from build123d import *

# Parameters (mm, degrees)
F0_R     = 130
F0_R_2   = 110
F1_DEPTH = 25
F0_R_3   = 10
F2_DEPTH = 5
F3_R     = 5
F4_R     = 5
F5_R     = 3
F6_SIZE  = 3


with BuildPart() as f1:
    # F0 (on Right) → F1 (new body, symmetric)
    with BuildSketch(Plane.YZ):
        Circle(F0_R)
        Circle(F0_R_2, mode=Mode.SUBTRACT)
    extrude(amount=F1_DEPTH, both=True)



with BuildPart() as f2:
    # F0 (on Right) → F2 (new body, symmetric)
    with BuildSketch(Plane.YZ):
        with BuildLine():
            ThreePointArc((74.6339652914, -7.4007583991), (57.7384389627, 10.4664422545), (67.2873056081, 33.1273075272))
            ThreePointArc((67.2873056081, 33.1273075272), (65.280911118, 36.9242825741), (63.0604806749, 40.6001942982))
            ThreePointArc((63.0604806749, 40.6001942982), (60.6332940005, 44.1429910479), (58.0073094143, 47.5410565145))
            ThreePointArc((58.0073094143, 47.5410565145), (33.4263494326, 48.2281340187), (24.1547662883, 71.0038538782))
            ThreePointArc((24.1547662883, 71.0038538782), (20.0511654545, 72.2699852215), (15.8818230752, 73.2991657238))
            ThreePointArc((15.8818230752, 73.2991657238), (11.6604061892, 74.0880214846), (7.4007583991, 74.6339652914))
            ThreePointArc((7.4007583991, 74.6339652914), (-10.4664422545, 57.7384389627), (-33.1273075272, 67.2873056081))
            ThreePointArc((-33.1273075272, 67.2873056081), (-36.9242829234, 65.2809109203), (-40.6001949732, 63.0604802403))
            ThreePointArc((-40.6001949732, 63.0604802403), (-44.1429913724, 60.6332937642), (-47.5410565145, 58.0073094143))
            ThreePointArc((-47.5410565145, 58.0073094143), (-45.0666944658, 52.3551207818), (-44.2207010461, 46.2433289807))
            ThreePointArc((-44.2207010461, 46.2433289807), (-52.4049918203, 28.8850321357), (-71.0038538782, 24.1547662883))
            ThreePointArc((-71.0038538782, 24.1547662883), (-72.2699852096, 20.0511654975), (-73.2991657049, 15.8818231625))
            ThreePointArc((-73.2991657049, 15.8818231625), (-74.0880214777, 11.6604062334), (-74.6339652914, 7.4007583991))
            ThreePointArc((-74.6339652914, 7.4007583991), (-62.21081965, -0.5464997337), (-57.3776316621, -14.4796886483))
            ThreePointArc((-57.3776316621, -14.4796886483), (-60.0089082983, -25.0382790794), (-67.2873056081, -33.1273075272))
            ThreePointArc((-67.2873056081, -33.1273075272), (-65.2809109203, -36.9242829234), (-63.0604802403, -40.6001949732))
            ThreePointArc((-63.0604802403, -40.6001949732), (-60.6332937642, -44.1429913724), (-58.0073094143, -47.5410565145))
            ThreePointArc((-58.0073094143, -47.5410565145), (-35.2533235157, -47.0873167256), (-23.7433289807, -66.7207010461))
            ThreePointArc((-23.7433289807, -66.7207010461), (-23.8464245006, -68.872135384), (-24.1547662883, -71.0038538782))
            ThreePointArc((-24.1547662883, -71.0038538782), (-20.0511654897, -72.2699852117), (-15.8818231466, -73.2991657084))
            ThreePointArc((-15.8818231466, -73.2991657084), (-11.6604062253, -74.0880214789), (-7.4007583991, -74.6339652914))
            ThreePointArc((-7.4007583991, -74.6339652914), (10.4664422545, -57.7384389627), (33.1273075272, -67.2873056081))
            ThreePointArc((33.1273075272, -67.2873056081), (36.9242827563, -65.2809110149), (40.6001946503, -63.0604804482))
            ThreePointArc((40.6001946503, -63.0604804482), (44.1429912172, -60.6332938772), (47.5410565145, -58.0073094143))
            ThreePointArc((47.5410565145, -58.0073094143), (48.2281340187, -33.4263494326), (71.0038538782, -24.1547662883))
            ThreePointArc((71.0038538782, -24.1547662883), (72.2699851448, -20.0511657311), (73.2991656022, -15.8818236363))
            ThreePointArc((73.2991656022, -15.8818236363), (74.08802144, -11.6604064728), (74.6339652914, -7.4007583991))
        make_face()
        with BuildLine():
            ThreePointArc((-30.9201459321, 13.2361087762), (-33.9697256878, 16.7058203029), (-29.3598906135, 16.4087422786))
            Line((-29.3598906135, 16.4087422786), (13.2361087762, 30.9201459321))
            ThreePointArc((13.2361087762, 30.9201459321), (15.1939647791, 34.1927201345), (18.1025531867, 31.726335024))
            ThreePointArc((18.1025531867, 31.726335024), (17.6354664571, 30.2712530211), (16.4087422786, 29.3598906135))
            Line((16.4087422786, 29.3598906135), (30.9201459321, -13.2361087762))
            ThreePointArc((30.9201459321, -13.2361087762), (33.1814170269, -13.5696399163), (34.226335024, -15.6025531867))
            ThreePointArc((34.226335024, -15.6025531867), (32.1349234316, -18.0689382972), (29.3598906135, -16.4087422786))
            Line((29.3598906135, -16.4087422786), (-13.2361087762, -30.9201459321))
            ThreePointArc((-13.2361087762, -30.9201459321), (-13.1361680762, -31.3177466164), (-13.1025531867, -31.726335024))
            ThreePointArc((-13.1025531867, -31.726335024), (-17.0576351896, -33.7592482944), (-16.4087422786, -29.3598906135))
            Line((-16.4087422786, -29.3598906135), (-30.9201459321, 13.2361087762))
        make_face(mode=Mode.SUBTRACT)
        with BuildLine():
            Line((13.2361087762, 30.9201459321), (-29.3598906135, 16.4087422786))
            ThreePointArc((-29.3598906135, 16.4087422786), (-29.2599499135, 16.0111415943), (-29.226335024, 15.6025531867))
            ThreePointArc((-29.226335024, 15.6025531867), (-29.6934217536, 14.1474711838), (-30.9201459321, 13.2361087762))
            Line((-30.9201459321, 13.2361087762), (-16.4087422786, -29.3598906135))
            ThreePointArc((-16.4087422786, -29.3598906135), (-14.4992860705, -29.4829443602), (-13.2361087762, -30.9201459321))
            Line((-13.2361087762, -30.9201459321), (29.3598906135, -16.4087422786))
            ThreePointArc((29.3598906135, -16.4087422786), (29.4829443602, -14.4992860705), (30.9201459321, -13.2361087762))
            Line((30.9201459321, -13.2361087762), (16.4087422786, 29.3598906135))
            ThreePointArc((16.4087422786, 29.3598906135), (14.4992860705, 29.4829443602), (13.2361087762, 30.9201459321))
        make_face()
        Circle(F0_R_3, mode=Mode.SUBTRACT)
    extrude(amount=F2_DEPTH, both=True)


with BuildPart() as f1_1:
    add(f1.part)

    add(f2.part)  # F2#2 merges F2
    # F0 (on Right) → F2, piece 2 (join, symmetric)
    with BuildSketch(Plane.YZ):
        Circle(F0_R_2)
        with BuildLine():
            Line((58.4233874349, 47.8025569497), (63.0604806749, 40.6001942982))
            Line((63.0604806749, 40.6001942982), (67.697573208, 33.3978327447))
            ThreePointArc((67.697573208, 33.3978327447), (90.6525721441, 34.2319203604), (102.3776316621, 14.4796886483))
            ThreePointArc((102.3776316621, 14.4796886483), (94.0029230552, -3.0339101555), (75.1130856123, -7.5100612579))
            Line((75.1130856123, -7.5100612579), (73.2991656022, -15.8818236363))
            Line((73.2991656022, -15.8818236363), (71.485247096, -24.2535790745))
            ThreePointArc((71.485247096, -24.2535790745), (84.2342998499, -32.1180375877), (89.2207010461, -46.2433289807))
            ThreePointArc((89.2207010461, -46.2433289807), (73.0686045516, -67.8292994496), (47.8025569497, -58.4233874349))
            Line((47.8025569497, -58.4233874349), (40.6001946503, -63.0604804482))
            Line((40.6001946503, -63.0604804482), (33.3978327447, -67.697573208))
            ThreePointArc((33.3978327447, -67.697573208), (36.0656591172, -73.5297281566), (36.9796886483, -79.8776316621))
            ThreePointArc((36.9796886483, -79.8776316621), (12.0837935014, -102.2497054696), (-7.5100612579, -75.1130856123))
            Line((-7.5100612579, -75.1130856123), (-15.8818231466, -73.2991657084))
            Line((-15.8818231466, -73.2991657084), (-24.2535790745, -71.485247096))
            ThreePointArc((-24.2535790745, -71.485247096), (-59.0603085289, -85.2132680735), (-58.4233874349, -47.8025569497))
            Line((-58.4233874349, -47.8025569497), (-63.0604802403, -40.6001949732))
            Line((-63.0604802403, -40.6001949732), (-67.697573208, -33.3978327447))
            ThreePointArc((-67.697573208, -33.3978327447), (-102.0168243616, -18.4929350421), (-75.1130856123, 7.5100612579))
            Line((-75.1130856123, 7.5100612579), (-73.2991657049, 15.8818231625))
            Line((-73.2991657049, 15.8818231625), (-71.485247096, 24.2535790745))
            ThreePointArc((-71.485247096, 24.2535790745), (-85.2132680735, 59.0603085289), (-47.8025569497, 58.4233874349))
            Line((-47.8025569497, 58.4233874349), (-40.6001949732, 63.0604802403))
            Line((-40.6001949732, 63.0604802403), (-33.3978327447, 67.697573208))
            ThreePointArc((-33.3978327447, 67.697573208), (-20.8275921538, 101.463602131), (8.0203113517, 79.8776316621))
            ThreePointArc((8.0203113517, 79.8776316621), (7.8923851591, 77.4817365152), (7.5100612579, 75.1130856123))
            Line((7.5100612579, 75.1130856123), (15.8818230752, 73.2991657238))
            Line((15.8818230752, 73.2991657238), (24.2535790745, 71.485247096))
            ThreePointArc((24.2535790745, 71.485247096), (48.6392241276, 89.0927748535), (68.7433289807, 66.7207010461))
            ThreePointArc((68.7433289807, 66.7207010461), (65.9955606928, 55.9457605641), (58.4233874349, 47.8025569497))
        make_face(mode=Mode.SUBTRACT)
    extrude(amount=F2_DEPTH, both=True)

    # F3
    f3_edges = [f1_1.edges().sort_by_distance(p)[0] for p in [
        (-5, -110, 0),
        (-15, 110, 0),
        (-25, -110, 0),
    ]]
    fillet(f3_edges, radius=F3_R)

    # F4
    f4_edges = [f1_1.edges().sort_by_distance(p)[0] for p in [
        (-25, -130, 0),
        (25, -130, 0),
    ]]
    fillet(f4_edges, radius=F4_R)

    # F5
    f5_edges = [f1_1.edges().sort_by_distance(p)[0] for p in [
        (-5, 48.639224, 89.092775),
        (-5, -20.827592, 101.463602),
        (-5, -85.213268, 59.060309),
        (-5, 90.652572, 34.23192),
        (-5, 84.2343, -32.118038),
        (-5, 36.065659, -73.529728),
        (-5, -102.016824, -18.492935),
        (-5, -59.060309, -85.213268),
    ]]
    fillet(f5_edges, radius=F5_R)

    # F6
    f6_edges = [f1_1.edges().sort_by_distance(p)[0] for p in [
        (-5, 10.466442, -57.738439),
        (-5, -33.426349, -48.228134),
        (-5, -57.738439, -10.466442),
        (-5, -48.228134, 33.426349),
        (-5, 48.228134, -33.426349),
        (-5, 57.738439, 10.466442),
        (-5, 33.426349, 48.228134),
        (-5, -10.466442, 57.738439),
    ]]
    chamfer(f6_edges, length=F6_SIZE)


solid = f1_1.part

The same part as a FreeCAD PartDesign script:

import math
import FreeCAD as App
import Part
import Sketcher

V = App.Vector


def edges_at(feature, points):
    """Names of the edges that pass closest to the given points."""
    edges = feature.Shape.Edges
    near = lambda p: min(range(len(edges)), key=lambda i: edges[i].distToShape(Part.Vertex(*p))[0])
    return sorted({f"Edge{near(p) + 1}" for p in points})

doc = App.newDocument("Part")
body = doc.addObject("PartDesign::Body", "Body")

sketch1 = doc.addObject("Sketcher::SketchObject", "Sketch")
body.addObject(sketch1)
sketch1.AttachmentSupport = (doc.YZ_Plane, [""])
sketch1.MapMode = "FlatFace"
sketch1.addGeometry([
    Part.Circle(V(0, 0, 0), V(0, 0, 1), 130),
    Part.Circle(V(0, 0, 0), V(0, 0, 1), 110),
], False)
sketch1.addConstraint([
    Sketcher.Constraint("Coincident", 0, 3, -1, 1),
    Sketcher.Constraint("Coincident", 1, 3, -1, 1),
    Sketcher.Constraint("Diameter", 0, 260.0),
    Sketcher.Constraint("Diameter", 1, 220.0),
])
pad1 = doc.addObject("PartDesign::Pad", "Pad")
body.addObject(pad1)
pad1.Profile = sketch1
pad1.Length = 50
pad1.Midplane = True
body2 = doc.addObject("PartDesign::Body", "Body001")

sketch2 = doc.addObject("Sketcher::SketchObject", "Sketch001")
body2.addObject(sketch2)
sketch2.AttachmentSupport = (doc.getObject("YZ_Plane001"), [""])
sketch2.MapMode = "FlatFace"
sketch2.addGeometry([
    Part.ArcOfCircle(Part.Circle(V(79.877632, 14.479689, 0), V(0, 0, 1), 22.5), math.radians(124.026069), math.radians(256.523187)),
    Part.ArcOfCircle(Part.Circle(V(0, 0, 0), V(0, 0, 1), 75), math.radians(26.212234), math.radians(32.774627)),
    Part.ArcOfCircle(Part.Circle(V(0, 0, 0), V(0, 0, 1), 75), math.radians(32.774627), math.radians(39.337021)),
    Part.ArcOfCircle(Part.Circle(V(46.243329, 66.720701, 0), V(0, 0, 1), 22.5), math.radians(169.026069), math.radians(301.523187)),
    Part.ArcOfCircle(Part.Circle(V(0, 0, 0), V(0, 0, 1), 75), math.radians(71.212234), math.radians(77.774626)),
    Part.ArcOfCircle(Part.Circle(V(0, 0, 0), V(0, 0, 1), 75), math.radians(77.774626), math.radians(84.337021)),
    Part.ArcOfCircle(Part.Circle(V(-14.479689, 79.877632, 0), V(0, 0, 1), 22.5), math.radians(-145.973931), math.radians(-13.476813)),
    Part.ArcOfCircle(Part.Circle(V(0, 0, 0), V(0, 0, 1), 75), math.radians(116.212234), math.radians(122.774628)),
    Part.ArcOfCircle(Part.Circle(V(0, 0, 0), V(0, 0, 1), 75), math.radians(122.774628), math.radians(129.337021)),
    Part.ArcOfCircle(Part.Circle(V(-66.720701, 46.243329, 0), V(0, 0, 1), 22.5), math.radians(0), math.radians(31.523187)),
    Part.ArcOfCircle(Part.Circle(V(-66.720701, 46.243329, 0), V(0, 0, 1), 22.5), math.radians(-100.973931), math.radians(0)),
    Part.ArcOfCircle(Part.Circle(V(0, 0, 0), V(0, 0, 1), 75), math.radians(161.212234), math.radians(167.774626)),
    Part.ArcOfCircle(Part.Circle(V(0, 0, 0), V(0, 0, 1), 75), math.radians(167.774626), math.radians(174.337021)),
    Part.ArcOfCircle(Part.Circle(V(-79.877632, -14.479689, 0), V(0, 0, 1), 22.5), math.radians(0), math.radians(76.523187)),
    Part.ArcOfCircle(Part.Circle(V(-79.877632, -14.479689, 0), V(0, 0, 1), 22.5), math.radians(-55.973931), math.radians(0)),
    Part.ArcOfCircle(Part.Circle(V(0, 0, 0), V(0, 0, 1), 75), math.radians(-153.787766), math.radians(-147.225372)),
    Part.ArcOfCircle(Part.Circle(V(0, 0, 0), V(0, 0, 1), 75), math.radians(-147.225372), math.radians(-140.662979)),
    Part.ArcOfCircle(Part.Circle(V(-46.243329, -66.720701, 0), V(0, 0, 1), 22.5), math.radians(0), math.radians(121.523187)),
    Part.ArcOfCircle(Part.Circle(V(-46.243329, -66.720701, 0), V(0, 0, 1), 22.5), math.radians(-10.973931), math.radians(0)),
    Part.ArcOfCircle(Part.Circle(V(0, 0, 0), V(0, 0, 1), 75), math.radians(-108.787766), math.radians(-102.225374)),
    Part.ArcOfCircle(Part.Circle(V(0, 0, 0), V(0, 0, 1), 75), math.radians(-102.225374), math.radians(-95.662979)),
    Part.ArcOfCircle(Part.Circle(V(14.479689, -79.877632, 0), V(0, 0, 1), 22.5), math.radians(34.026069), math.radians(166.523187)),
    Part.ArcOfCircle(Part.Circle(V(0, 0, 0), V(0, 0, 1), 75), math.radians(-63.787766), math.radians(-57.225372)),
    Part.ArcOfCircle(Part.Circle(V(0, 0, 0), V(0, 0, 1), 75), math.radians(-57.225372), math.radians(-50.662979)),
    Part.ArcOfCircle(Part.Circle(V(66.720701, -46.243329, 0), V(0, 0, 1), 22.5), math.radians(79.026069), math.radians(211.523187)),
    Part.ArcOfCircle(Part.Circle(V(0, 0, 0), V(0, 0, 1), 75), math.radians(-18.787766), math.radians(-12.225375)),
    Part.ArcOfCircle(Part.Circle(V(0, 0, 0), V(0, 0, 1), 75), math.radians(-12.225375), math.radians(-5.662979)),
    Part.ArcOfCircle(Part.Circle(V(-15.602553, -31.726335, 0), V(0, 0, 1), 2.5), math.radians(108.812707), math.radians(360)),
    Part.ArcOfCircle(Part.Circle(V(-15.602553, -31.726335, 0), V(0, 0, 1), 2.5), math.radians(18.812707), math.radians(108.812707)),
    Part.ArcOfCircle(Part.Circle(V(-15.602553, -31.726335, 0), V(0, 0, 1), 2.5), math.radians(0), math.radians(18.812707)),
    Part.ArcOfCircle(Part.Circle(V(31.726335, -15.602553, 0), V(0, 0, 1), 2.5), math.radians(-161.187293), math.radians(0)),
    Part.ArcOfCircle(Part.Circle(V(31.726335, -15.602553, 0), V(0, 0, 1), 2.5), math.radians(108.812707), math.radians(198.812707)),
    Part.ArcOfCircle(Part.Circle(V(31.726335, -15.602553, 0), V(0, 0, 1), 2.5), math.radians(0), math.radians(108.812707)),
    Part.ArcOfCircle(Part.Circle(V(-31.726335, 15.602553, 0), V(0, 0, 1), 2.5), math.radians(18.812707), math.radians(288.812707)),
    Part.ArcOfCircle(Part.Circle(V(-31.726335, 15.602553, 0), V(0, 0, 1), 2.5), math.radians(0), math.radians(18.812707)),
    Part.ArcOfCircle(Part.Circle(V(-31.726335, 15.602553, 0), V(0, 0, 1), 2.5), math.radians(-71.187293), math.radians(0)),
    Part.Circle(V(0, 0, 0), V(0, 0, 1), 10),
    Part.ArcOfCircle(Part.Circle(V(15.602553, 31.726335, 0), V(0, 0, 1), 2.5), math.radians(-71.187293), math.radians(0)),
    Part.ArcOfCircle(Part.Circle(V(15.602553, 31.726335, 0), V(0, 0, 1), 2.5), math.radians(-161.187293), math.radians(-71.187293)),
    Part.ArcOfCircle(Part.Circle(V(15.602553, 31.726335, 0), V(0, 0, 1), 2.5), math.radians(0), math.radians(198.812707)),
], False)
sketch2.addConstraint([
    Sketcher.Constraint("Coincident", 0, 1, 1, 1),
    Sketcher.Constraint("Tangent", 1, 2, 2, 1),
    Sketcher.Constraint("Coincident", 2, 2, 3, 2),
    Sketcher.Constraint("Coincident", 3, 1, 4, 1),
    Sketcher.Constraint("Tangent", 4, 2, 5, 1),
    Sketcher.Constraint("Coincident", 5, 2, 6, 2),
    Sketcher.Constraint("Coincident", 6, 1, 7, 1),
    Sketcher.Constraint("Tangent", 7, 2, 8, 1),
    Sketcher.Constraint("Coincident", 8, 2, 9, 2),
    Sketcher.Constraint("Tangent", 9, 1, 10, 2),
    Sketcher.Constraint("Coincident", 10, 1, 11, 1),
    Sketcher.Constraint("Tangent", 11, 2, 12, 1),
    Sketcher.Constraint("Coincident", 12, 2, 13, 2),
    Sketcher.Constraint("Tangent", 13, 1, 14, 2),
    Sketcher.Constraint("Coincident", 14, 1, 15, 1),
    Sketcher.Constraint("Tangent", 15, 2, 16, 1),
    Sketcher.Constraint("Coincident", 16, 2, 17, 2),
    Sketcher.Constraint("Tangent", 17, 1, 18, 2),
    Sketcher.Constraint("Coincident", 18, 1, 19, 1),
    Sketcher.Constraint("Tangent", 19, 2, 20, 1),
    Sketcher.Constraint("Coincident", 20, 2, 21, 2),
    Sketcher.Constraint("Coincident", 21, 1, 22, 1),
    Sketcher.Constraint("Tangent", 22, 2, 23, 1),
    Sketcher.Constraint("Coincident", 23, 2, 24, 2),
    Sketcher.Constraint("Coincident", 24, 1, 25, 1),
    Sketcher.Constraint("Tangent", 25, 2, 26, 1),
    Sketcher.Constraint("Coincident", 26, 2, 0, 2),
    Sketcher.Constraint("Tangent", 27, 1, 28, 2),
    Sketcher.Constraint("Tangent", 28, 1, 29, 2),
    Sketcher.Constraint("Tangent", 29, 1, 27, 2),
    Sketcher.Constraint("Tangent", 30, 1, 31, 2),
    Sketcher.Constraint("Tangent", 31, 1, 32, 2),
    Sketcher.Constraint("Tangent", 32, 1, 30, 2),
    Sketcher.Constraint("Tangent", 33, 1, 34, 2),
    Sketcher.Constraint("Tangent", 34, 1, 35, 2),
    Sketcher.Constraint("Tangent", 35, 1, 33, 2),
    Sketcher.Constraint("Tangent", 37, 1, 38, 2),
    Sketcher.Constraint("Tangent", 38, 1, 39, 2),
    Sketcher.Constraint("Tangent", 39, 1, 37, 2),
    Sketcher.Constraint("Coincident", 1, 3, -1, 1),
    Sketcher.Constraint("Coincident", 4, 3, -1, 1),
    Sketcher.Constraint("Coincident", 7, 3, -1, 1),
    Sketcher.Constraint("Coincident", 11, 3, -1, 1),
    Sketcher.Constraint("Coincident", 15, 3, -1, 1),
    Sketcher.Constraint("Coincident", 19, 3, -1, 1),
    Sketcher.Constraint("Coincident", 22, 3, -1, 1),
    Sketcher.Constraint("Coincident", 25, 3, -1, 1),
    Sketcher.Constraint("Coincident", 36, 3, -1, 1),
    Sketcher.Constraint("Equal", 1, 2),
    Sketcher.Constraint("Equal", 0, 3),
    Sketcher.Constraint("Equal", 2, 4),
    Sketcher.Constraint("Equal", 4, 5),
    Sketcher.Constraint("Equal", 3, 6),
    Sketcher.Constraint("Equal", 5, 7),
    Sketcher.Constraint("Equal", 7, 8),
    Sketcher.Constraint("Equal", 6, 9),
    Sketcher.Constraint("Equal", 9, 10),
    Sketcher.Constraint("Equal", 8, 11),
    Sketcher.Constraint("Equal", 11, 12),
    Sketcher.Constraint("Equal", 10, 13),
    Sketcher.Constraint("Equal", 13, 14),
    Sketcher.Constraint("Equal", 12, 15),
    Sketcher.Constraint("Equal", 15, 16),
    Sketcher.Constraint("Equal", 14, 17),
    Sketcher.Constraint("Equal", 17, 18),
    Sketcher.Constraint("Equal", 16, 19),
    Sketcher.Constraint("Equal", 19, 20),
    Sketcher.Constraint("Equal", 18, 21),
    Sketcher.Constraint("Equal", 20, 22),
    Sketcher.Constraint("Equal", 22, 23),
    Sketcher.Constraint("Equal", 21, 24),
    Sketcher.Constraint("Equal", 23, 25),
    Sketcher.Constraint("Equal", 25, 26),
    Sketcher.Constraint("Equal", 29, 30),
    Sketcher.Constraint("Equal", 32, 33),
    Sketcher.Constraint("Equal", 35, 37),
    Sketcher.Constraint("Symmetric", 0, 3, 13, 3, -1, 1),
    Sketcher.Constraint("Symmetric", 3, 3, 17, 3, -1, 1),
    Sketcher.Constraint("Symmetric", 6, 3, 21, 3, -1, 1),
    Sketcher.Constraint("Symmetric", 9, 3, 24, 3, -1, 1),
    Sketcher.Constraint("Symmetric", 30, 3, 33, 3, -1, 1),
    Sketcher.Constraint("Symmetric", 27, 3, 37, 3, -1, 1),
    Sketcher.Constraint("Horizontal", 10, 3, 9, 1),
    Sketcher.Constraint("Horizontal", 14, 3, 13, 1),
    Sketcher.Constraint("Horizontal", 18, 3, 17, 1),
    Sketcher.Constraint("Horizontal", 28, 3, 29, 1),
    Sketcher.Constraint("Horizontal", 31, 3, 32, 1),
    Sketcher.Constraint("Horizontal", 35, 3, 34, 1),
    Sketcher.Constraint("Horizontal", 38, 3, 39, 1),
    Sketcher.Constraint("Diameter", 36, 20.0),
    Sketcher.Constraint("Radius", 1, 75.0),
    Sketcher.Constraint("Radius", 0, 22.5),
    Sketcher.Constraint("Radius", 27, 2.5),
    Sketcher.Constraint("DistanceY", -1, 1, 3, 3, 66.720701),
    Sketcher.Constraint("DistanceX", 9, 3, -1, 1, 66.720701),
    Sketcher.Constraint("DistanceX", -1, 1, 0, 3, 79.877632),
    Sketcher.Constraint("DistanceY", -1, 1, 0, 3, 14.479689),
    Sketcher.Constraint("DistanceX", -1, 1, 3, 3, 46.243329),
    Sketcher.Constraint("DistanceX", 6, 3, -1, 1, 14.479689),
    Sketcher.Constraint("DistanceY", -1, 1, 6, 3, 79.877632),
    Sketcher.Constraint("DistanceY", -1, 1, 9, 3, 46.243329),
    Sketcher.Constraint("DistanceX", -1, 1, 1, 2, 63.060481),
    Sketcher.Constraint("DistanceY", -1, 1, 7, 2, 63.06048),
    Sketcher.Constraint("DistanceX", 15, 2, -1, 1, 63.06048),
    Sketcher.Constraint("DistanceY", 22, 2, -1, 1, 63.06048),
    Sketcher.Constraint("DistanceY", 27, 1, -1, 1, 29.359891),
    Sketcher.Constraint("DistanceX", 28, 1, -1, 1, 13.236109),
    Sketcher.Constraint("DistanceX", -1, 1, 30, 1, 29.359891),
    Sketcher.Constraint("DistanceY", 31, 1, -1, 1, 13.236109),
    Sketcher.Constraint("DistanceX", 33, 1, -1, 1, 29.359891),
    Sketcher.Constraint("DistanceY", -1, 1, 35, 1, 13.236109),
    Sketcher.Constraint("DistanceY", -1, 1, 37, 1, 29.359891),
    Sketcher.Constraint("DistanceX", -1, 1, 38, 1, 13.236109),
    Sketcher.Constraint("DistanceX", 27, 3, -1, 1, 15.602553),
    Sketcher.Constraint("DistanceY", 27, 3, -1, 1, 31.726335),
    Sketcher.Constraint("DistanceX", -1, 1, 30, 3, 31.726335),
    Sketcher.Constraint("DistanceY", 30, 3, -1, 1, 15.602553),
    Sketcher.Constraint("DistanceX", -1, 1, 4, 2, 15.881823),
    Sketcher.Constraint("DistanceX", 11, 2, -1, 1, 73.299166),
    Sketcher.Constraint("DistanceX", 19, 2, -1, 1, 15.881823),
    Sketcher.Constraint("DistanceX", -1, 1, 25, 2, 73.299166),
])
pad2 = doc.addObject("PartDesign::Pad", "Pad001")
body2.addObject(pad2)
pad2.Profile = sketch2
pad2.Length = 10
pad2.Midplane = True
body.AllowCompound = True
doc.recompute()

boolean = doc.addObject("PartDesign::Boolean", "Boolean")
body.addObject(boolean)
boolean.Type = "Fuse"
boolean.addObjects([body2])

sketch3 = doc.addObject("Sketcher::SketchObject", "Sketch002")
body.addObject(sketch3)
sketch3.AttachmentSupport = (doc.YZ_Plane, [""])
sketch3.MapMode = "FlatFace"
sketch3.addGeometry([
    Part.Circle(V(0, 0, 0), V(0, 0, 1), 110),
    Part.ArcOfCircle(Part.Circle(V(46.243329, 66.720701, 0), V(0, 0, 1), 22.5), math.radians(-57.225372), math.radians(0)),
    Part.LineSegment(V(58.423387, 47.802557, 0), V(63.060481, 40.600194, 0)),
    Part.LineSegment(V(63.060481, 40.600194, 0), V(67.697573, 33.397833, 0)),
    Part.ArcOfCircle(Part.Circle(V(79.877632, 14.479689, 0), V(0, 0, 1), 22.5), math.radians(0), math.radians(122.774628)),
    Part.ArcOfCircle(Part.Circle(V(79.877632, 14.479689, 0), V(0, 0, 1), 22.5), math.radians(-102.225372), math.radians(0)),
    Part.LineSegment(V(75.113086, -7.510061, 0), V(73.299166, -15.881824, 0)),
    Part.LineSegment(V(73.299166, -15.881824, 0), V(71.485247, -24.253579, 0)),
    Part.ArcOfCircle(Part.Circle(V(66.720701, -46.243329, 0), V(0, 0, 1), 22.5), math.radians(0), math.radians(77.774628)),
    Part.ArcOfCircle(Part.Circle(V(66.720701, -46.243329, 0), V(0, 0, 1), 22.5), math.radians(-147.225372), math.radians(0)),
    Part.LineSegment(V(47.802557, -58.423387, 0), V(40.600195, -63.06048, 0)),
    Part.LineSegment(V(40.600195, -63.06048, 0), V(33.397833, -67.697573, 0)),
    Part.ArcOfCircle(Part.Circle(V(14.479689, -79.877632, 0), V(0, 0, 1), 22.5), math.radians(0), math.radians(32.774628)),
    Part.ArcOfCircle(Part.Circle(V(14.479689, -79.877632, 0), V(0, 0, 1), 22.5), math.radians(167.774628), math.radians(360)),
    Part.LineSegment(V(-7.510061, -75.113086, 0), V(-15.881823, -73.299166, 0)),
    Part.LineSegment(V(-15.881823, -73.299166, 0), V(-24.253579, -71.485247, 0)),
    Part.ArcOfCircle(Part.Circle(V(-46.243329, -66.720701, 0), V(0, 0, 1), 22.5), math.radians(122.774628), math.radians(347.774628)),
    Part.LineSegment(V(-58.423387, -47.802557, 0), V(-63.06048, -40.600195, 0)),
    Part.LineSegment(V(-63.06048, -40.600195, 0), V(-67.697573, -33.397833, 0)),
    Part.ArcOfCircle(Part.Circle(V(-79.877632, -14.479689, 0), V(0, 0, 1), 22.5), math.radians(77.774628), math.radians(302.774628)),
    Part.LineSegment(V(-75.113086, 7.510061, 0), V(-73.299166, 15.881823, 0)),
    Part.LineSegment(V(-73.299166, 15.881823, 0), V(-71.485247, 24.253579, 0)),
    Part.ArcOfCircle(Part.Circle(V(-66.720701, 46.243329, 0), V(0, 0, 1), 22.5), math.radians(32.774628), math.radians(257.774628)),
    Part.LineSegment(V(-47.802557, 58.423387, 0), V(-40.600195, 63.06048, 0)),
    Part.LineSegment(V(-40.600195, 63.06048, 0), V(-33.397833, 67.697573, 0)),
    Part.ArcOfCircle(Part.Circle(V(-14.479689, 79.877632, 0), V(0, 0, 1), 22.5), math.radians(0), math.radians(212.774628)),
    Part.ArcOfCircle(Part.Circle(V(-14.479689, 79.877632, 0), V(0, 0, 1), 22.5), math.radians(-12.225372), math.radians(0)),
    Part.LineSegment(V(7.510061, 75.113086, 0), V(15.881823, 73.299166, 0)),
    Part.LineSegment(V(15.881823, 73.299166, 0), V(24.253579, 71.485247, 0)),
    Part.ArcOfCircle(Part.Circle(V(46.243329, 66.720701, 0), V(0, 0, 1), 22.5), math.radians(0), math.radians(167.774628)),
], False)
sketch3.addConstraint([
    Sketcher.Constraint("Coincident", 1, 1, 2, 1),
    Sketcher.Constraint("Coincident", 2, 2, 3, 1),
    Sketcher.Constraint("Coincident", 3, 2, 4, 2),
    Sketcher.Constraint("Tangent", 4, 1, 5, 2),
    Sketcher.Constraint("Coincident", 5, 1, 6, 1),
    Sketcher.Constraint("Coincident", 6, 2, 7, 1),
    Sketcher.Constraint("Coincident", 7, 2, 8, 2),
    Sketcher.Constraint("Tangent", 8, 1, 9, 2),
    Sketcher.Constraint("Coincident", 9, 1, 10, 1),
    Sketcher.Constraint("Coincident", 10, 2, 11, 1),
    Sketcher.Constraint("Coincident", 11, 2, 12, 2),
    Sketcher.Constraint("Tangent", 12, 1, 13, 2),
    Sketcher.Constraint("Coincident", 13, 1, 14, 1),
    Sketcher.Constraint("Coincident", 14, 2, 15, 1),
    Sketcher.Constraint("Coincident", 15, 2, 16, 2),
    Sketcher.Constraint("Coincident", 16, 1, 17, 1),
    Sketcher.Constraint("Coincident", 17, 2, 18, 1),
    Sketcher.Constraint("Coincident", 18, 2, 19, 2),
    Sketcher.Constraint("Coincident", 19, 1, 20, 1),
    Sketcher.Constraint("Coincident", 20, 2, 21, 1),
    Sketcher.Constraint("Coincident", 21, 2, 22, 2),
    Sketcher.Constraint("Coincident", 22, 1, 23, 1),
    Sketcher.Constraint("Coincident", 23, 2, 24, 1),
    Sketcher.Constraint("Coincident", 24, 2, 25, 2),
    Sketcher.Constraint("Tangent", 25, 1, 26, 2),
    Sketcher.Constraint("Coincident", 26, 1, 27, 1),
    Sketcher.Constraint("Coincident", 27, 2, 28, 1),
    Sketcher.Constraint("Coincident", 28, 2, 29, 2),
    Sketcher.Constraint("Tangent", 29, 1, 1, 2),
    Sketcher.Constraint("Coincident", 0, 3, -1, 1),
    Sketcher.Constraint("Equal", 1, 4),
    Sketcher.Constraint("Equal", 4, 5),
    Sketcher.Constraint("Equal", 5, 8),
    Sketcher.Constraint("Equal", 8, 9),
    Sketcher.Constraint("Equal", 9, 12),
    Sketcher.Constraint("Equal", 12, 13),
    Sketcher.Constraint("Equal", 13, 16),
    Sketcher.Constraint("Equal", 16, 19),
    Sketcher.Constraint("Equal", 19, 22),
    Sketcher.Constraint("Equal", 22, 25),
    Sketcher.Constraint("Equal", 25, 26),
    Sketcher.Constraint("Equal", 26, 29),
    Sketcher.Constraint("Symmetric", 1, 3, 16, 3, -1, 1),
    Sketcher.Constraint("Symmetric", 4, 3, 19, 3, -1, 1),
    Sketcher.Constraint("Symmetric", 8, 3, 22, 3, -1, 1),
    Sketcher.Constraint("Symmetric", 12, 3, 25, 3, -1, 1),
    Sketcher.Constraint("Symmetric", 2, 2, 17, 2, -1, 1),
    Sketcher.Constraint("Symmetric", 6, 2, 20, 2, -1, 1),
    Sketcher.Constraint("Symmetric", 10, 2, 23, 2, -1, 1),
    Sketcher.Constraint("Symmetric", 14, 2, 27, 2, -1, 1),
    Sketcher.Constraint("Parallel", 2, 3),
    Sketcher.Constraint("Parallel", 6, 7),
    Sketcher.Constraint("Perpendicular", 3, 10),
    Sketcher.Constraint("Parallel", 10, 11),
    Sketcher.Constraint("Perpendicular", 7, 14),
    Sketcher.Constraint("Parallel", 14, 15),
    Sketcher.Constraint("Perpendicular", 11, 17),
    Sketcher.Constraint("Parallel", 17, 18),
    Sketcher.Constraint("Perpendicular", 15, 20),
    Sketcher.Constraint("Parallel", 20, 21),
    Sketcher.Constraint("Perpendicular", 18, 23),
    Sketcher.Constraint("Parallel", 23, 24),
    Sketcher.Constraint("Perpendicular", 21, 27),
    Sketcher.Constraint("Parallel", 27, 28),
    Sketcher.Constraint("Horizontal", 5, 3, 4, 1),
    Sketcher.Constraint("Horizontal", 9, 3, 8, 1),
    Sketcher.Constraint("Horizontal", 13, 3, 12, 1),
    Sketcher.Constraint("Horizontal", 26, 3, 25, 1),
    Sketcher.Constraint("Horizontal", 1, 3, 29, 1),
    Sketcher.Constraint("Equal", 2, 3),
    Sketcher.Constraint("Equal", 3, 10),
    Sketcher.Constraint("Equal", 10, 11),
    Sketcher.Constraint("Equal", 6, 14),
    Sketcher.Constraint("Equal", 7, 15),
    Sketcher.Constraint("Diameter", 0, 220.0),
    Sketcher.Constraint("Radius", 1, 22.5),
    Sketcher.Constraint("DistanceY", -1, 1, 1, 3, 66.720701),
    Sketcher.Constraint("DistanceX", -1, 1, 8, 3, 66.720701),
    Sketcher.Constraint("DistanceX", 17, 2, 15, 2, 38.806901),
    Sketcher.Constraint("DistanceX", 19, 1, 16, 1, 16.689698),
    Sketcher.Constraint("DistanceY", 21, 2, 23, 2, 38.806901),
    Sketcher.Constraint("Distance", 6, 8.566021),
    Sketcher.Constraint("DistanceX", -1, 1, 1, 3, 46.243329),
    Sketcher.Constraint("DistanceX", -1, 1, 4, 3, 79.877632),
    Sketcher.Constraint("DistanceY", -1, 1, 4, 3, 14.479689),
    Sketcher.Constraint("DistanceY", 8, 3, -1, 1, 46.243329),
    Sketcher.Constraint("DistanceX", -1, 1, 2, 2, 63.060481),
    Sketcher.Constraint("DistanceY", 5, 1, -1, 1, 7.510061),
    Sketcher.Constraint("DistanceY", 7, 2, -1, 1, 24.253579),
])
pad3 = doc.addObject("PartDesign::Pad", "Pad002")
body.addObject(pad3)
pad3.Profile = sketch3
pad3.Length = 10
pad3.Midplane = True
doc.recompute()

fillet = doc.addObject("PartDesign::Fillet", "Fillet")
body.addObject(fillet)
fillet.Base = (pad3, edges_at(pad3, [(-5, -110, 0), (-15, 110, 0), (-25, -110, 0)]))
fillet.Radius = 5
doc.recompute()

fillet2 = doc.addObject("PartDesign::Fillet", "Fillet001")
body.addObject(fillet2)
fillet2.Base = (fillet, edges_at(fillet, [(-25, -130, 0), (25, -130, 0)]))
fillet2.Radius = 5
doc.recompute()

fillet3 = doc.addObject("PartDesign::Fillet", "Fillet002")
body.addObject(fillet3)
fillet3.Base = (fillet2, edges_at(fillet2, [
    (-5, 48.639, 89.093),
    (-5, -20.828, 101.464),
    (-5, -85.213, 59.06),
    (-5, 90.653, 34.232),
    (-5, 84.234, -32.118),
    (-5, 36.066, -73.53),
    (-5, -102.017, -18.493),
    (-5, -59.06, -85.213),
]))
fillet3.Radius = 3
doc.recompute()

chamfer = doc.addObject("PartDesign::Chamfer", "Chamfer")
body.addObject(chamfer)
chamfer.Base = (fillet3, edges_at(fillet3, [
    (-5, 10.466, -57.738),
    (-5, -35.253, -47.087),
    (-5, -62.211, -0.546),
    (-5, -52.405, 28.885),
    (-5, 48.228, -33.426),
    (-5, 57.738, 10.466),
    (-5, 33.426, 48.228),
    (-5, -10.466, 57.738),
]))
chamfer.Size = 3

doc.recompute()
